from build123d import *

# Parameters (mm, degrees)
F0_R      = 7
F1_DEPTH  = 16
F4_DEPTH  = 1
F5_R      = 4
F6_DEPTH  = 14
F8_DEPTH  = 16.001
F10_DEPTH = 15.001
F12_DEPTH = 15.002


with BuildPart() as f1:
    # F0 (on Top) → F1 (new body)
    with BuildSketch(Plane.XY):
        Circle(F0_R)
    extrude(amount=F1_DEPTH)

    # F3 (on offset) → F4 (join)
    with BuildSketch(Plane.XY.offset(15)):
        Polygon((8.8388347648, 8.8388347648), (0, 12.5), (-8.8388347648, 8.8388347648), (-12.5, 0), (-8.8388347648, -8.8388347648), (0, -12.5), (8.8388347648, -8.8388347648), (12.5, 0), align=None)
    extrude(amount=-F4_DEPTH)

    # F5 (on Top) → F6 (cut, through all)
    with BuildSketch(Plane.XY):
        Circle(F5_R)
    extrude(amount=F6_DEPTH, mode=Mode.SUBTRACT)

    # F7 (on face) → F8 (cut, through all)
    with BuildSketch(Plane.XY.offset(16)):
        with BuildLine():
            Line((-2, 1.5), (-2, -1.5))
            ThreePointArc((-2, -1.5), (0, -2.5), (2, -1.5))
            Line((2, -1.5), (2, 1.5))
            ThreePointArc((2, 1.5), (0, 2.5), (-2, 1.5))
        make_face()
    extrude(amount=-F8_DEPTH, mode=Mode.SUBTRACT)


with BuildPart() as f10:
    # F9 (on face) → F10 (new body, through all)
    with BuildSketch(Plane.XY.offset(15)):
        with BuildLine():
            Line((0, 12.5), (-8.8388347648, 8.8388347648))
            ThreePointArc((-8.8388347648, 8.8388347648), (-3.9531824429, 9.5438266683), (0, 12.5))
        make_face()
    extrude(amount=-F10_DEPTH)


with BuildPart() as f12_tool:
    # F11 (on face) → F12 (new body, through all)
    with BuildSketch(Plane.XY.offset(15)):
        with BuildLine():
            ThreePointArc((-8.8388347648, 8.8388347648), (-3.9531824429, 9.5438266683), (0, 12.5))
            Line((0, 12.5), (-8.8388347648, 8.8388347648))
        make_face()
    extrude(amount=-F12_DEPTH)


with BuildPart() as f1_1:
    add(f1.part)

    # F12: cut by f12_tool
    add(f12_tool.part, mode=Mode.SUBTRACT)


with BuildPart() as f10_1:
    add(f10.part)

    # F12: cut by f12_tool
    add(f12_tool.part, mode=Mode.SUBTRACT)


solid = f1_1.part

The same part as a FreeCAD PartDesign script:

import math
import FreeCAD as App
import Part
import Sketcher
from FreeCAD import Vector
Q = App.Units.Quantity

doc = App.newDocument("Part")
body = doc.addObject("PartDesign::Body", "Body")

sketch1 = body.newObject("Sketcher::SketchObject", "Sketch")
sketch1.AttachmentSupport = (doc.getObject("XY_Plane"), [""])
sketch1.MapMode = "FlatFace"
sketch1.addGeometry(Part.Circle(Vector(0, 0, 0), Vector(0, 0, 1), 7), False)
sketch1.addConstraint([
    Sketcher.Constraint("Coincident", 0, 3, -1, 1),
    Sketcher.Constraint("Diameter", 0, Q("14 mm")),
])
pad1 = body.newObject("PartDesign::Pad", "Pad")
pad1.Profile = sketch1
pad1.Length = 16

sketch2 = body.newObject("Sketcher::SketchObject", "Sketch001")
sketch2.AttachmentSupport = (doc.getObject("XY_Plane"), [""])
sketch2.MapMode = "FlatFace"
sketch2.AttachmentOffset = App.Placement(Vector(0, 0, 15), App.Rotation())
sketch2.addGeometry([
    Part.LineSegment(Vector(8.838835, 8.838835, 0), Vector(0, 12.5, 0)),
    Part.LineSegment(Vector(0, 12.5, 0), Vector(-8.838835, 8.838835, 0)),
    Part.LineSegment(Vector(-8.838835, 8.838835, 0), Vector(-12.5, 0, 0)),
    Part.LineSegment(Vector(-12.5, 0, 0), Vector(-8.838835, -8.838835, 0)),
    Part.LineSegment(Vector(-8.838835, -8.838835, 0), Vector(0, -12.5, 0)),
    Part.LineSegment(Vector(0, -12.5, 0), Vector(8.838835, -8.838835, 0)),
    Part.LineSegment(Vector(8.838835, -8.838835, 0), Vector(12.5, 0, 0)),
    Part.LineSegment(Vector(12.5, 0, 0), Vector(8.838835, 8.838835, 0)),
], False)
sketch2.addConstraint([
    Sketcher.Constraint("Coincident", 0, 2, 1, 1),
    Sketcher.Constraint("Coincident", 1, 2, 2, 1),
    Sketcher.Constraint("Coincident", 2, 2, 3, 1),
    Sketcher.Constraint("Coincident", 3, 2, 4, 1),
    Sketcher.Constraint("Coincident", 4, 2, 5, 1),
    Sketcher.Constraint("Coincident", 5, 2, 6, 1),
    Sketcher.Constraint("Coincident", 6, 2, 7, 1),
    Sketcher.Constraint("Coincident", 7, 2, 0, 1),
    Sketcher.Constraint("Symmetric", 0, 2, 4, 2, -1, 1),
    Sketcher.Constraint("Symmetric", 1, 2, 5, 2, -1, 1),
    Sketcher.Constraint("Symmetric", 2, 2, 6, 2, -1, 1),
    Sketcher.Constraint("Symmetric", 3, 2, 7, 2, -1, 1),
    Sketcher.Constraint("Symmetric", 3, 2, 5, 2, -2),
    Sketcher.Constraint("PointOnObject", 0, 2, -2),
    Sketcher.Constraint("PointOnObject", 2, 2, -1),
    Sketcher.Constraint("Perpendicular", 0, 2),
    Sketcher.Constraint("Equal", 1, 2),
    Sketcher.Constraint("Angle", 0, Q("157.5 deg")),
    Sketcher.Constraint("DistanceY", 4, 2, 0, 2, Q("25 mm")),
])
pad2 = body.newObject("PartDesign::Pad", "Pad001")
pad2.Profile = sketch2
pad2.Length = 1
pad2.Reversed = True

sketch3 = body.newObject("Sketcher::SketchObject", "Sketch002")
sketch3.AttachmentSupport = (doc.getObject("XY_Plane"), [""])
sketch3.MapMode = "FlatFace"
sketch3.addGeometry(Part.Circle(Vector(0, 0, 0), Vector(0, 0, 1), 4), False)
sketch3.addConstraint([
    Sketcher.Constraint("Coincident", 0, 3, -1, 1),
    Sketcher.Constraint("Diameter", 0, Q("8 mm")),
])
pocket1 = body.newObject("PartDesign::Pocket", "Pocket")
pocket1.Profile = sketch3
pocket1.Length = 14
pocket1.Reversed = True

sketch4 = body.newObject("Sketcher::SketchObject", "Sketch003")
sketch4.AttachmentSupport = (doc.getObject("XY_Plane"), [""])
sketch4.MapMode = "FlatFace"
sketch4.AttachmentOffset = App.Placement(Vector(0, 0, 16), App.Rotation())
sketch4.addGeometry([
    Part.LineSegment(Vector(-2, 1.5, 0), Vector(-2, -1.5, 0)),
    Part.ArcOfCircle(Part.Circle(Vector(0, 0, 0), Vector(0, 0, 1), 2.5), math.radians(-143.130102), math.radians(-36.869898)),
    Part.LineSegment(Vector(2, -1.5, 0), Vector(2, 1.5, 0)),
    Part.ArcOfCircle(Part.Circle(Vector(0, 0, 0), Vector(0, 0, 1), 2.5), math.radians(36.869898), math.radians(143.130102)),
], False)
sketch4.addConstraint([
    Sketcher.Constraint("Coincident", 0, 2, 1, 1),
    Sketcher.Constraint("Coincident", 1, 2, 2, 1),
    Sketcher.Constraint("Coincident", 2, 2, 3, 1),
    Sketcher.Constraint("Coincident", 3, 2, 0, 1),
    Sketcher.Constraint("Vertical", 0),
    Sketcher.Constraint("Vertical", 2),
    Sketcher.Constraint("Coincident", 1, 3, -1, 1),
    Sketcher.Constraint("Coincident", 3, 3, -1, 1),
    Sketcher.Constraint("Equal", 1, 3),
    Sketcher.Constraint("Horizontal", 0, 2, 1, 2),
    Sketcher.Constraint("Radius", 1, Q("2.5 mm")),
    Sketcher.Constraint("DistanceY", 0, 2, 0, 1, Q("3 mm")),
])
pocket2 = body.newObject("PartDesign::Pocket", "Pocket001")
pocket2.Profile = sketch4
pocket2.Type = "ThroughAll"
body2 = doc.addObject("PartDesign::Body", "Body001")

sketch5 = body2.newObject("Sketcher::SketchObject", "Sketch004")
sketch5.AttachmentSupport = (doc.getObject("XY_Plane001"), [""])
sketch5.MapMode = "FlatFace"
sketch5.AttachmentOffset = App.Placement(Vector(0, 0, 15), App.Rotation())
sketch5.addGeometry([
    Part.LineSegment(Vector(0, 12.5, 0), Vector(-8.838835, 8.838835, 0)),
    Part.ArcOfCircle(Part.Circle(Vector(-7.780017, 18.782622, 0), Vector(0, 0, 1), 10), math.radians(-96.077973), math.radians(-38.922027)),
], False)
sketch5.addConstraint([
    Sketcher.Constraint("Coincident", 0, 1, 1, 2),
    Sketcher.Constraint("Coincident", 1, 1, 0, 2),
    Sketcher.Constraint("PointOnObject", 0, 1, -2),
    Sketcher.Constraint("Radius", 1, Q("10 mm")),
    Sketcher.Constraint("Angle", 0, Q("-157.5 deg")),
    Sketcher.Constraint("DistanceY", -1, 1, 0, 1, Q("12.5 mm")),
    Sketcher.Constraint("DistanceY", -1, 1, 1, 3, Q("18.782622 mm")),
])
pad3 = body2.newObject("PartDesign::Pad", "Pad002")
pad3.Profile = sketch5
pad3.Length = 15.001
pad3.Reversed = True
body3 = doc.addObject("PartDesign::Body", "Body002")

sketch6 = body3.newObject("Sketcher::SketchObject", "Sketch005")
sketch6.AttachmentSupport = (doc.getObject("XY_Plane002"), [""])
sketch6.MapMode = "FlatFace"
sketch6.AttachmentOffset = App.Placement(Vector(0, 0, 15), App.Rotation())
sketch6.addGeometry([
    Part.ArcOfCircle(Part.Circle(Vector(-7.780017, 18.782622, 0), Vector(0, 0, 1), 10), math.radians(-96.077973), math.radians(-38.922027)),
    Part.LineSegment(Vector(0, 12.5, 0), Vector(-8.838835, 8.838835, 0)),
], False)
sketch6.addConstraint([
    Sketcher.Constraint("Coincident", 0, 1, 1, 2),
    Sketcher.Constraint("Coincident", 1, 1, 0, 2),
    Sketcher.Constraint("PointOnObject", 1, 1, -2),
    Sketcher.Constraint("Radius", 0, Q("10 mm")),
    Sketcher.Constraint("Angle", 1, Q("-157.5 deg")),
    Sketcher.Constraint("DistanceY", -1, 1, 1, 1, Q("12.5 mm")),
    Sketcher.Constraint("DistanceY", -1, 1, 0, 3, Q("18.782622 mm")),
])
pad4 = body3.newObject("PartDesign::Pad", "Pad003")
pad4.Profile = sketch6
pad4.Length = 15.002
pad4.Reversed = True
doc.recompute()

body4 = doc.addObject("PartDesign::Body", "Body003")
body4.BaseFeature = body3
boolean = body.newObject("PartDesign::Boolean", "Boolean")
boolean.Type = "Cut"
boolean.addObjects([body4])
doc.recompute()

boolean2 = body2.newObject("PartDesign::Boolean", "Boolean001")
boolean2.Type = "Cut"
boolean2.addObjects([body3])

doc.recompute()
